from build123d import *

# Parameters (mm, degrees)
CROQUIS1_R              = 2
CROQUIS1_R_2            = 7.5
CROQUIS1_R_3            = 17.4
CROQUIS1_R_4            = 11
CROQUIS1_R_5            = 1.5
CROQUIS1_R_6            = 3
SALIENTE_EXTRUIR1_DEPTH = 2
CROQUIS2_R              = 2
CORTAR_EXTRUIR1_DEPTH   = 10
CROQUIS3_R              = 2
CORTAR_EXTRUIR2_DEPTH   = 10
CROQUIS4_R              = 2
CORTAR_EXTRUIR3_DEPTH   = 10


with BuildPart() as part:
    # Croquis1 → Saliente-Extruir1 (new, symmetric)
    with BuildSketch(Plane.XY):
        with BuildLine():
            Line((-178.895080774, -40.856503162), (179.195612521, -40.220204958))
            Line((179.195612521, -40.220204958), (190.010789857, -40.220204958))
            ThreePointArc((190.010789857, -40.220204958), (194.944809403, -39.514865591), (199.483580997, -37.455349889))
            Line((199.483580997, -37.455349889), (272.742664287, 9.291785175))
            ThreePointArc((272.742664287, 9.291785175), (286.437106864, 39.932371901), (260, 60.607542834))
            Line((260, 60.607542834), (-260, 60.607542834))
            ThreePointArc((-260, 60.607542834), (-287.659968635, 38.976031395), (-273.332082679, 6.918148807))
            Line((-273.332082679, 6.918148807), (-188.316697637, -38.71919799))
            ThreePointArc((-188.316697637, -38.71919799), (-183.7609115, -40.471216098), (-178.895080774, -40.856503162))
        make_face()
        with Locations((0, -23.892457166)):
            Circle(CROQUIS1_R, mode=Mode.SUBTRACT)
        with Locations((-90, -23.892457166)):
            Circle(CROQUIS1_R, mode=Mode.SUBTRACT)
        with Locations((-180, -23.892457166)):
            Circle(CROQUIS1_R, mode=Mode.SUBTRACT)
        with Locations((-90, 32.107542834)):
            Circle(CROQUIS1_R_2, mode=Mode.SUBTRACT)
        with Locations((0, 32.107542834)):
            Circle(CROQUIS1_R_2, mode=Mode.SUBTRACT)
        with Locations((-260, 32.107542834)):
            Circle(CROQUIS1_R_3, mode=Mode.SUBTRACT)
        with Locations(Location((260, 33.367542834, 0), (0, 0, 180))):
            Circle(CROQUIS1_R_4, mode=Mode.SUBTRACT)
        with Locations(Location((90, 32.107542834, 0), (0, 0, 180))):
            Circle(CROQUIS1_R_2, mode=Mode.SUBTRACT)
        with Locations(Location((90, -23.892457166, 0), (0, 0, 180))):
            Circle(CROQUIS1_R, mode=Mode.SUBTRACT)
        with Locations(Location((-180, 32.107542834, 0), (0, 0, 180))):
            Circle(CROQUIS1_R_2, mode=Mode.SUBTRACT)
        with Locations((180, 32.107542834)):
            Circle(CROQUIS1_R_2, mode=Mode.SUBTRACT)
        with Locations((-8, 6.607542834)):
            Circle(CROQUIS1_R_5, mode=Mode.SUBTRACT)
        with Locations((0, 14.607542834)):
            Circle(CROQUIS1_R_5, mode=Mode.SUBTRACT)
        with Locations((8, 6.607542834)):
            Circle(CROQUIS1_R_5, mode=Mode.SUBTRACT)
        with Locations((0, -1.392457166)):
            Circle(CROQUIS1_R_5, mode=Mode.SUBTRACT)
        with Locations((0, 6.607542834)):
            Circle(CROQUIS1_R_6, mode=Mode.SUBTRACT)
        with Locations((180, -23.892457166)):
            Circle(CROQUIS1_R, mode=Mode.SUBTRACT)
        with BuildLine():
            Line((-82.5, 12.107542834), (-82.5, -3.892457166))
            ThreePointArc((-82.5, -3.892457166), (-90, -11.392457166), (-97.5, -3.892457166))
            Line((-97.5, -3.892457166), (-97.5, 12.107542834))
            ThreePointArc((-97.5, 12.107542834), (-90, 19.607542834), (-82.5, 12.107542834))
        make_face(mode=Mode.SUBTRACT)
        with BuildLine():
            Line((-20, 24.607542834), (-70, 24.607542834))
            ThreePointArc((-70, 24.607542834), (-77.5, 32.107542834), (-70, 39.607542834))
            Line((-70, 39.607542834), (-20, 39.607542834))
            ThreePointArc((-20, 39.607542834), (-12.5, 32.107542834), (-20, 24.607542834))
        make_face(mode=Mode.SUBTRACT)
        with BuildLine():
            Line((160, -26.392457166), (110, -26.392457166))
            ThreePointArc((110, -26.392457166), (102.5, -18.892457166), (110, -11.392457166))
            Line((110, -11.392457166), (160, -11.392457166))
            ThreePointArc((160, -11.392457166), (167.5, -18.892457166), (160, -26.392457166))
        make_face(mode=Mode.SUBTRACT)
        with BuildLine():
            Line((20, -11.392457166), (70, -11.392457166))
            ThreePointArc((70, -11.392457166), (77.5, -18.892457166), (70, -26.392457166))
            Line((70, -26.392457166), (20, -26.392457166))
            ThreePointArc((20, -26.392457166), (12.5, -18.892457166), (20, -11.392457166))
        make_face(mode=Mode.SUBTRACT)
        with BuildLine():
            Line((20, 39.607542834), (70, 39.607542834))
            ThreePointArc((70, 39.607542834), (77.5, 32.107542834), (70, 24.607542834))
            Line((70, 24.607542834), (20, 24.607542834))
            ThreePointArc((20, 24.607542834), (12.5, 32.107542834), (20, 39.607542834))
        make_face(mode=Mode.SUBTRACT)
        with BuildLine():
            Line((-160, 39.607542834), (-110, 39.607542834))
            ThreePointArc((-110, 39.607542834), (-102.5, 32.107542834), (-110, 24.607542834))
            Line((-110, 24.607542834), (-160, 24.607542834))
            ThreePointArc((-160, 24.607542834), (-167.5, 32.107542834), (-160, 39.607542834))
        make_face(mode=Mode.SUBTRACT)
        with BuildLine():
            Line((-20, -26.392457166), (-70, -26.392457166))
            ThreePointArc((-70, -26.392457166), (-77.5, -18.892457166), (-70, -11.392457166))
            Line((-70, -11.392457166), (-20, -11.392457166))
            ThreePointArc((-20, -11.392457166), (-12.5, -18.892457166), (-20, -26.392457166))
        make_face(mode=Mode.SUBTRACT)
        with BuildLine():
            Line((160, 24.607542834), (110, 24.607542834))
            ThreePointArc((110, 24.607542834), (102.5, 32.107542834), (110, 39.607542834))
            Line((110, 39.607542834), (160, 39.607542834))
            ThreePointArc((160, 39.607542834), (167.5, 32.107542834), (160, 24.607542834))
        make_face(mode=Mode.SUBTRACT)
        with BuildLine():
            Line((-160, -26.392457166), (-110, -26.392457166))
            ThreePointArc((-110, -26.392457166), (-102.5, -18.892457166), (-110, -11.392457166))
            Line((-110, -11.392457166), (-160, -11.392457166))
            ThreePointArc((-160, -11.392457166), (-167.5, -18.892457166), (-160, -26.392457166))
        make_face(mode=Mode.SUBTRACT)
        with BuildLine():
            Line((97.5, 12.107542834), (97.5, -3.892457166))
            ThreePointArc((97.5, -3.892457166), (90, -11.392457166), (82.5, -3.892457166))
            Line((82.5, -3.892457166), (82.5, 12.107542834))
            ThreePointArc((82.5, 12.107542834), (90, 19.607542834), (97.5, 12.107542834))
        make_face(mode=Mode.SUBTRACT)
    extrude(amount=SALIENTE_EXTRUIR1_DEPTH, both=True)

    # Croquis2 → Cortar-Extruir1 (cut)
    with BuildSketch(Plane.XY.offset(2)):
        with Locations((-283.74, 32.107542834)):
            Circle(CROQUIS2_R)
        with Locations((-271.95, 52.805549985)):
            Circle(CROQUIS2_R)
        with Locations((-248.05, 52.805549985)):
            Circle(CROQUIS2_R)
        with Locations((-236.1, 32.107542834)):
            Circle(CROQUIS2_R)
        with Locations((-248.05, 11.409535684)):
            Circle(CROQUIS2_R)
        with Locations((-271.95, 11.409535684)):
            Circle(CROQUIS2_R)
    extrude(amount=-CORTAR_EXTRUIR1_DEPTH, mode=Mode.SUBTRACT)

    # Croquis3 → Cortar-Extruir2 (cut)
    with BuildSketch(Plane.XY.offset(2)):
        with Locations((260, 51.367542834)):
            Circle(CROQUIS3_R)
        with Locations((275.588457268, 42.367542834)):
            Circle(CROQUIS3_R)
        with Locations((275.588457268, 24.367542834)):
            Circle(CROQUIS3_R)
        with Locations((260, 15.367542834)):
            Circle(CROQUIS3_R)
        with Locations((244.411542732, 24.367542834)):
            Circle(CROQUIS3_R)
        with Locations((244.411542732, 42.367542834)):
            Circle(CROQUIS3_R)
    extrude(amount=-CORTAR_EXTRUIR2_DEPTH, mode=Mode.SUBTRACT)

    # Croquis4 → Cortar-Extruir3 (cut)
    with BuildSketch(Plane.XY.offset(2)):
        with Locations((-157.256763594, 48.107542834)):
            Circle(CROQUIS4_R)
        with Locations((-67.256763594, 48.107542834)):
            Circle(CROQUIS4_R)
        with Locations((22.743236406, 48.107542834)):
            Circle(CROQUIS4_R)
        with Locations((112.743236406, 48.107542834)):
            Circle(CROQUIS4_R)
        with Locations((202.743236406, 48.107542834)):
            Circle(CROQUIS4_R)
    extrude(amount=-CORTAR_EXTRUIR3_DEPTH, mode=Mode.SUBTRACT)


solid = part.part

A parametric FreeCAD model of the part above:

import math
import FreeCAD as App
import Part
import Sketcher
from FreeCAD import Vector

doc = App.newDocument("Part")
params = doc.addObject("Spreadsheet::Sheet", "Params")
for row, (alias, value) in enumerate([
    ("sketch1_diameter", "4 mm"),
    ("sketch1_diameter2", "3 mm"),
    ("sketch1_diameter3", "6 mm"),
    ("sketch1_diameter4", "15 mm"),
    ("sketch1_diameter5", "22 mm"),
    ("pad1_length", "4 mm"),
    ("sketch2_diameter", "4 mm"),
    ("pocket1_length", "10 mm"),
    ("sketch3_diameter", "4 mm"),
    ("pocket2_length", "10 mm"),
    ("sketch4_diameter", "4 mm"),
    ("pocket3_length", "10 mm"),
], start=1):
    params.set(f"A{row}", alias)
    params.set(f"B{row}", "=" + value)
    params.setAlias(f"B{row}", alias)

body = doc.addObject("PartDesign::Body", "Body")

sketch1 = doc.addObject("Sketcher::SketchObject", "Sketch")
body.addObject(sketch1)
sketch1.AttachmentSupport = (doc.XY_Plane, [""])
sketch1.MapMode = "FlatFace"
sketch1.addGeometry(Part.LineSegment(Vector(-178.895081, -40.856503, 0), Vector(179.195613, -40.220205, 0)), False)
sketch1.addGeometry(Part.LineSegment(Vector(179.195613, -40.220205, 0), Vector(190.01079, -40.220205, 0)), False)
sketch1.addGeometry(Part.ArcOfCircle(Part.Circle(Vector(190.01079, -22.610205, 0), Vector(0, 0, 1), 17.61), math.radians(-90), math.radians(-57.457767)), False)
sketch1.addGeometry(Part.LineSegment(Vector(199.483581, -37.45535, 0), Vector(272.742664, 9.291785, 0)), False)
sketch1.addGeometry(Part.ArcOfCircle(Part.Circle(Vector(260, 33.367543, 0), Vector(0, 0, 1), 27.24), math.radians(-62.10891), math.radians(90)), False)
sketch1.addGeometry(Part.LineSegment(Vector(260, 60.607543, 0), Vector(-260, 60.607543, 0)), False)
sketch1.addGeometry(Part.ArcOfCircle(Part.Circle(Vector(-260, 32.107543, 0), Vector(0, 0, 1), 28.5), math.radians(90), math.radians(242.10891)), False)
sketch1.addGeometry(Part.LineSegment(Vector(-273.332083, 6.918149, 0), Vector(-188.316698, -38.719198, 0)), False)
sketch1.addGeometry(Part.ArcOfCircle(Part.Circle(Vector(-180, -23.892457, 0), Vector(0, 0, 1), 16.999991), math.radians(-119.28918), math.radians(-86.273418)), False)
sketch1.addGeometry(Part.Circle(Vector(-180, -23.892457, 0), Vector(0, 0, 1), 2), False)
sketch1.addGeometry(Part.Circle(Vector(-90, -23.892457, 0), Vector(0, 0, 1), 2), False)
sketch1.addGeometry(Part.LineSegment(Vector(-110, -26.392457, 0), Vector(-160, -26.392457, 0)), False)
sketch1.addGeometry(Part.ArcOfCircle(Part.Circle(Vector(-160, -18.892457, 0), Vector(0, 0, 1), 7.5), math.radians(90), math.radians(270)), False)
sketch1.addGeometry(Part.LineSegment(Vector(-160, -11.392457, 0), Vector(-110, -11.392457, 0)), False)
sketch1.addGeometry(Part.ArcOfCircle(Part.Circle(Vector(-110, -18.892457, 0), Vector(0, 0, 1), 7.5), math.radians(-90), math.radians(90)), False)
sketch1.addGeometry(Part.ArcOfCircle(Part.Circle(Vector(-20, -18.892457, 0), Vector(0, 0, 1), 7.5), math.radians(-90), math.radians(90)), False)
sketch1.addGeometry(Part.LineSegment(Vector(-20, -26.392457, 0), Vector(-70, -26.392457, 0)), False)
sketch1.addGeometry(Part.ArcOfCircle(Part.Circle(Vector(-70, -18.892457, 0), Vector(0, 0, 1), 7.5), math.radians(90), math.radians(270)), False)
sketch1.addGeometry(Part.LineSegment(Vector(-70, -11.392457, 0), Vector(-20, -11.392457, 0)), False)
sketch1.addGeometry(Part.ArcOfCircle(Part.Circle(Vector(-90, 12.107543, 0), Vector(0, 0, 1), 7.5), math.radians(0), math.radians(180)), False)
sketch1.addGeometry(Part.LineSegment(Vector(-82.5, 12.107543, 0), Vector(-82.5, -3.892457, 0)), False)
sketch1.addGeometry(Part.ArcOfCircle(Part.Circle(Vector(-90, -3.892457, 0), Vector(0, 0, 1), 7.5), math.radians(180), math.radians(360)), False)
sketch1.addGeometry(Part.LineSegment(Vector(-97.5, -3.892457, 0), Vector(-97.5, 12.107543, 0)), False)
sketch1.addGeometry(Part.Circle(Vector(-8, 6.607543, 0), Vector(0, 0, 1), 1.5), False)
sketch1.addGeometry(Part.Circle(Vector(0, -23.892457, 0), Vector(0, 0, 1), 2), False)
sketch1.addGeometry(Part.ArcOfCircle(Part.Circle(Vector(20, -18.892457, 0), Vector(0, 0, 1), 7.5), math.radians(90), math.radians(270)), False)
sketch1.addGeometry(Part.LineSegment(Vector(20, -11.392457, 0), Vector(70, -11.392457, 0)), False)
sketch1.addGeometry(Part.ArcOfCircle(Part.Circle(Vector(70, -18.892457, 0), Vector(0, 0, 1), 7.5), math.radians(-90), math.radians(90)), False)
sketch1.addGeometry(Part.LineSegment(Vector(70, -26.392457, 0), Vector(20, -26.392457, 0)), False)
sketch1.addGeometry(Part.Circle(Vector(90, -23.892457, 0), Vector(0, 0, 1), 2), False)
sketch1.addGeometry(Part.Circle(Vector(180, -23.892457, 0), Vector(0, 0, 1), 2), False)
sketch1.addGeometry(Part.ArcOfCircle(Part.Circle(Vector(160, -18.892457, 0), Vector(0, 0, 1), 7.5), math.radians(-90), math.radians(90)), False)
sketch1.addGeometry(Part.LineSegment(Vector(160, -26.392457, 0), Vector(110, -26.392457, 0)), False)
sketch1.addGeometry(Part.ArcOfCircle(Part.Circle(Vector(110, -18.892457, 0), Vector(0, 0, 1), 7.5), math.radians(90), math.radians(270)), False)
sketch1.addGeometry(Part.LineSegment(Vector(110, -11.392457, 0), Vector(160, -11.392457, 0)), False)
sketch1.addGeometry(Part.Circle(Vector(0, -1.392457, 0), Vector(0, 0, 1), 1.5), False)
sketch1.addGeometry(Part.Circle(Vector(0, 6.607543, 0), Vector(0, 0, 1), 3), False)
sketch1.addGeometry(Part.Circle(Vector(8, 6.607543, 0), Vector(0, 0, 1), 1.5), False)
sketch1.addGeometry(Part.ArcOfCircle(Part.Circle(Vector(90, 12.107543, 0), Vector(0, 0, 1), 7.5), math.radians(0), math.radians(180)), False)
sketch1.addGeometry(Part.LineSegment(Vector(97.5, 12.107543, 0), Vector(97.5, -3.892457, 0)), False)
sketch1.addGeometry(Part.ArcOfCircle(Part.Circle(Vector(90, -3.892457, 0), Vector(0, 0, 1), 7.5), math.radians(180), math.radians(360)), False)
sketch1.addGeometry(Part.LineSegment(Vector(82.5, -3.892457, 0), Vector(82.5, 12.107543, 0)), False)
sketch1.addGeometry(Part.Circle(Vector(-260, 32.107543, 0), Vector(0, 0, 1), 17.4), False)
sketch1.addGeometry(Part.Circle(Vector(-180, 32.107543, 0), Vector(0, 0, 1), 7.5), False)
sketch1.addGeometry(Part.ArcOfCircle(Part.Circle(Vector(-160, 32.107543, 0), Vector(0, 0, 1), 7.5), math.radians(90), math.radians(270)), False)
sketch1.addGeometry(Part.LineSegment(Vector(-160, 39.607543, 0), Vector(-110, 39.607543, 0)), False)
sketch1.addGeometry(Part.ArcOfCircle(Part.Circle(Vector(-110, 32.107543, 0), Vector(0, 0, 1), 7.5), math.radians(-90), math.radians(90)), False)
sketch1.addGeometry(Part.LineSegment(Vector(-110, 24.607543, 0), Vector(-160, 24.607543, 0)), False)
sketch1.addGeometry(Part.Circle(Vector(-90, 32.107543, 0), Vector(0, 0, 1), 7.5), False)
sketch1.addGeometry(Part.ArcOfCircle(Part.Circle(Vector(-20, 32.107543, 0), Vector(0, 0, 1), 7.5), math.radians(-90), math.radians(90)), False)
sketch1.addGeometry(Part.LineSegment(Vector(-20, 24.607543, 0), Vector(-70, 24.607543, 0)), False)
sketch1.addGeometry(Part.ArcOfCircle(Part.Circle(Vector(-70, 32.107543, 0), Vector(0, 0, 1), 7.5), math.radians(90), math.radians(270)), False)
sketch1.addGeometry(Part.LineSegment(Vector(-70, 39.607543, 0), Vector(-20, 39.607543, 0)), False)
sketch1.addGeometry(Part.Circle(Vector(0, 14.607543, 0), Vector(0, 0, 1), 1.5), False)
sketch1.addGeometry(Part.Circle(Vector(0, 32.107543, 0), Vector(0, 0, 1), 7.5), False)
sketch1.addGeometry(Part.ArcOfCircle(Part.Circle(Vector(20, 32.107543, 0), Vector(0, 0, 1), 7.5), math.radians(90), math.radians(270)), False)
sketch1.addGeometry(Part.LineSegment(Vector(20, 39.607543, 0), Vector(70, 39.607543, 0)), False)
sketch1.addGeometry(Part.ArcOfCircle(Part.Circle(Vector(70, 32.107543, 0), Vector(0, 0, 1), 7.5), math.radians(-90), math.radians(90)), False)
sketch1.addGeometry(Part.LineSegment(Vector(70, 24.607543, 0), Vector(20, 24.607543, 0)), False)
sketch1.addGeometry(Part.Circle(Vector(90, 32.107543, 0), Vector(0, 0, 1), 7.5), False)
sketch1.addGeometry(Part.ArcOfCircle(Part.Circle(Vector(160, 32.107543, 0), Vector(0, 0, 1), 7.5), math.radians(-90), math.radians(90)), False)
sketch1.addGeometry(Part.LineSegment(Vector(160, 24.607543, 0), Vector(110, 24.607543, 0)), False)
sketch1.addGeometry(Part.ArcOfCircle(Part.Circle(Vector(110, 32.107543, 0), Vector(0, 0, 1), 7.5), math.radians(90), math.radians(270)), False)
sketch1.addGeometry(Part.LineSegment(Vector(110, 39.607543, 0), Vector(160, 39.607543, 0)), False)
sketch1.addGeometry(Part.Circle(Vector(180, 32.107543, 0), Vector(0, 0, 1), 7.5), False)
sketch1.addGeometry(Part.Circle(Vector(260, 33.367543, 0), Vector(0, 0, 1), 11), False)
sketch1.addConstraint(Sketcher.Constraint("Coincident", 0, 2, 1, 1))
sketch1.addConstraint(Sketcher.Constraint("Tangent", 1, 2, 2, 1))
sketch1.addConstraint(Sketcher.Constraint("Tangent", 2, 2, 3, 1))
sketch1.addConstraint(Sketcher.Constraint("Coincident", 3, 2, 4, 1))
sketch1.addConstraint(Sketcher.Constraint("Tangent", 4, 2, 5, 1))
sketch1.addConstraint(Sketcher.Constraint("Tangent", 5, 2, 6, 1))
sketch1.addConstraint(Sketcher.Constraint("Coincident", 6, 2, 7, 1))
sketch1.addConstraint(Sketcher.Constraint("Coincident", 7, 2, 8, 1))
sketch1.addConstraint(Sketcher.Constraint("Coincident", 8, 2, 0, 1))
sketch1.addConstraint(Sketcher.Constraint("Tangent", 11, 2, 12, 2))
sketch1.addConstraint(Sketcher.Constraint("Tangent", 12, 1, 13, 1))
sketch1.addConstraint(Sketcher.Constraint("Tangent", 13, 2, 14, 2))
sketch1.addConstraint(Sketcher.Constraint("Tangent", 14, 1, 11, 1))
sketch1.addConstraint(Sketcher.Constraint("Tangent", 15, 1, 16, 1))
sketch1.addConstraint(Sketcher.Constraint("Tangent", 16, 2, 17, 2))
sketch1.addConstraint(Sketcher.Constraint("Tangent", 17, 1, 18, 1))
sketch1.addConstraint(Sketcher.Constraint("Tangent", 18, 2, 15, 2))
sketch1.addConstraint(Sketcher.Constraint("Tangent", 19, 1, 20, 1))
sketch1.addConstraint(Sketcher.Constraint("Tangent", 20, 2, 21, 2))
sketch1.addConstraint(Sketcher.Constraint("Tangent", 21, 1, 22, 1))
sketch1.addConstraint(Sketcher.Constraint("Tangent", 22, 2, 19, 2))
sketch1.addConstraint(Sketcher.Constraint("Tangent", 25, 1, 26, 1))
sketch1.addConstraint(Sketcher.Constraint("Tangent", 26, 2, 27, 2))
sketch1.addConstraint(Sketcher.Constraint("Tangent", 27, 1, 28, 1))
sketch1.addConstraint(Sketcher.Constraint("Tangent", 28, 2, 25, 2))
sketch1.addConstraint(Sketcher.Constraint("Tangent", 31, 1, 32, 1))
sketch1.addConstraint(Sketcher.Constraint("Tangent", 32, 2, 33, 2))
sketch1.addConstraint(Sketcher.Constraint("Tangent", 33, 1, 34, 1))
sketch1.addConstraint(Sketcher.Constraint("Tangent", 34, 2, 31, 2))
sketch1.addConstraint(Sketcher.Constraint("Tangent", 38, 1, 39, 1))
sketch1.addConstraint(Sketcher.Constraint("Tangent", 39, 2, 40, 2))
sketch1.addConstraint(Sketcher.Constraint("Tangent", 40, 1, 41, 1))
sketch1.addConstraint(Sketcher.Constraint("Tangent", 41, 2, 38, 2))
sketch1.addConstraint(Sketcher.Constraint("Tangent", 44, 1, 45, 1))
sketch1.addConstraint(Sketcher.Constraint("Tangent", 45, 2, 46, 2))
sketch1.addConstraint(Sketcher.Constraint("Tangent", 46, 1, 47, 1))
sketch1.addConstraint(Sketcher.Constraint("Tangent", 47, 2, 44, 2))
sketch1.addConstraint(Sketcher.Constraint("Tangent", 49, 1, 50, 1))
sketch1.addConstraint(Sketcher.Constraint("Tangent", 50, 2, 51, 2))
sketch1.addConstraint(Sketcher.Constraint("Tangent", 51, 1, 52, 1))
sketch1.addConstraint(Sketcher.Constraint("Tangent", 52, 2, 49, 2))
sketch1.addConstraint(Sketcher.Constraint("Tangent", 55, 1, 56, 1))
sketch1.addConstraint(Sketcher.Constraint("Tangent", 56, 2, 57, 2))
sketch1.addConstraint(Sketcher.Constraint("Tangent", 57, 1, 58, 1))
sketch1.addConstraint(Sketcher.Constraint("Tangent", 58, 2, 55, 2))
sketch1.addConstraint(Sketcher.Constraint("Tangent", 60, 1, 61, 1))
sketch1.addConstraint(Sketcher.Constraint("Tangent", 61, 2, 62, 2))
sketch1.addConstraint(Sketcher.Constraint("Tangent", 62, 1, 63, 1))
sketch1.addConstraint(Sketcher.Constraint("Tangent", 63, 2, 60, 2))
sketch1.addConstraint(Sketcher.Constraint("Horizontal", 1))
sketch1.addConstraint(Sketcher.Constraint("Horizontal", 5))
sketch1.addConstraint(Sketcher.Constraint("Horizontal", 11))
sketch1.addConstraint(Sketcher.Constraint("Horizontal", 13))
sketch1.addConstraint(Sketcher.Constraint("Horizontal", 16))
sketch1.addConstraint(Sketcher.Constraint("Horizontal", 18))
sketch1.addConstraint(Sketcher.Constraint("Vertical", 20))
sketch1.addConstraint(Sketcher.Constraint("Vertical", 22))
sketch1.addConstraint(Sketcher.Constraint("Horizontal", 26))
sketch1.addConstraint(Sketcher.Constraint("Horizontal", 28))
sketch1.addConstraint(Sketcher.Constraint("Horizontal", 32))
sketch1.addConstraint(Sketcher.Constraint("Horizontal", 34))
sketch1.addConstraint(Sketcher.Constraint("Vertical", 39))
sketch1.addConstraint(Sketcher.Constraint("Vertical", 41))
sketch1.addConstraint(Sketcher.Constraint("Horizontal", 45))
sketch1.addConstraint(Sketcher.Constraint("Horizontal", 47))
sketch1.addConstraint(Sketcher.Constraint("Horizontal", 50))
sketch1.addConstraint(Sketcher.Constraint("Horizontal", 52))
sketch1.addConstraint(Sketcher.Constraint("Horizontal", 56))
sketch1.addConstraint(Sketcher.Constraint("Horizontal", 58))
sketch1.addConstraint(Sketcher.Constraint("Horizontal", 61))
sketch1.addConstraint(Sketcher.Constraint("Horizontal", 63))
sketch1.addConstraint(Sketcher.Constraint("Coincident", 9, 3, 8, 3))
sketch1.addConstraint(Sketcher.Constraint("Coincident", 42, 3, 6, 3))
sketch1.addConstraint(Sketcher.Constraint("Coincident", 65, 3, 4, 3))
sketch1.addConstraint(Sketcher.Constraint("Equal", 9, 10))
sketch1.addConstraint(Sketcher.Constraint("Equal", 14, 15))
sketch1.addConstraint(Sketcher.Constraint("Equal", 17, 19))
sketch1.addConstraint(Sketcher.Constraint("Equal", 10, 24))
sketch1.addConstraint(Sketcher.Constraint("Equal", 21, 25))
sketch1.addConstraint(Sketcher.Constraint("Equal", 24, 29))
sketch1.addConstraint(Sketcher.Constraint("Equal", 29, 30))
sketch1.addConstraint(Sketcher.Constraint("Equal", 27, 31))
sketch1.addConstraint(Sketcher.Constraint("Equal", 23, 35))
sketch1.addConstraint(Sketcher.Constraint("Equal", 35, 37))
sketch1.addConstraint(Sketcher.Constraint("Equal", 33, 38))
sketch1.addConstraint(Sketcher.Constraint("Equal", 40, 43))
sketch1.addConstraint(Sketcher.Constraint("Equal", 43, 44))
sketch1.addConstraint(Sketcher.Constraint("Equal", 46, 48))
sketch1.addConstraint(Sketcher.Constraint("Equal", 48, 49))
sketch1.addConstraint(Sketcher.Constraint("Equal", 37, 53))
sketch1.addConstraint(Sketcher.Constraint("Equal", 51, 54))
sketch1.addConstraint(Sketcher.Constraint("Equal", 54, 55))
sketch1.addConstraint(Sketcher.Constraint("Equal", 57, 59))
sketch1.addConstraint(Sketcher.Constraint("Equal", 59, 60))
sketch1.addConstraint(Sketcher.Constraint("Equal", 62, 64))
sketch1.addConstraint(Sketcher.Constraint("Symmetric", 15, 3, 25, 3, -2))
sketch1.addConstraint(Sketcher.Constraint("Symmetric", 10, 3, 29, 3, -2))
sketch1.addConstraint(Sketcher.Constraint("Symmetric", 8, 3, 30, 3, -2))
sketch1.addConstraint(Sketcher.Constraint("Symmetric", 12, 3, 31, 3, -2))
sketch1.addConstraint(Sketcher.Constraint("Symmetric", 23, 3, 37, 3, -2))
sketch1.addConstraint(Sketcher.Constraint("Symmetric", 19, 3, 38, 3, -2))
sketch1.addConstraint(Sketcher.Constraint("Symmetric", 49, 3, 55, 3, -2))
sketch1.addConstraint(Sketcher.Constraint("Symmetric", 48, 3, 59, 3, -2))
sketch1.addConstraint(Sketcher.Constraint("Symmetric", 44, 3, 60, 3, -2))
sketch1.addConstraint(Sketcher.Constraint("Symmetric", 43, 3, 64, 3, -2))
sketch1.addConstraint(Sketcher.Constraint("PointOnObject", 24, 3, -2))
sketch1.addConstraint(Sketcher.Constraint("PointOnObject", 35, 3, -2))
sketch1.addConstraint(Sketcher.Constraint("PointOnObject", 36, 3, -2))
sketch1.addConstraint(Sketcher.Constraint("PointOnObject", 53, 3, -2))
sketch1.addConstraint(Sketcher.Constraint("PointOnObject", 54, 3, -2))
sketch1.addConstraint(Sketcher.Constraint("Horizontal", 9, 3, 10, 3))
sketch1.addConstraint(Sketcher.Constraint("Horizontal", 14, 3, 15, 3))
sketch1.addConstraint(Sketcher.Constraint("Horizontal", 10, 3, 24, 3))
sketch1.addConstraint(Sketcher.Constraint("Horizontal", 23, 3, 36, 3))
sketch1.addConstraint(Sketcher.Constraint("Horizontal", 21, 3, 40, 3))
sketch1.addConstraint(Sketcher.Constraint("Horizontal", 42, 3, 43, 3))
sketch1.addConstraint(Sketcher.Constraint("Horizontal", 43, 3, 44, 3))
sketch1.addConstraint(Sketcher.Constraint("Horizontal", 46, 3, 48, 3))
sketch1.addConstraint(Sketcher.Constraint("Horizontal", 48, 3, 49, 3))
sketch1.addConstraint(Sketcher.Constraint("Horizontal", 51, 3, 54, 3))
sketch1.addConstraint(Sketcher.Constraint("Vertical", 10, 3, 19, 3))
sketch1.addConstraint(Sketcher.Constraint("Vertical", 9, 3, 43, 3))
sketch1.addConstraint(Sketcher.Constraint("Vertical", 12, 3, 44, 3))
sketch1.addConstraint(Sketcher.Constraint("Vertical", 14, 3, 46, 3))
sketch1.addConstraint(Sketcher.Constraint("Vertical", 21, 3, 48, 3))
sketch1.addConstraint(Sketcher.Constraint("Vertical", 15, 3, 49, 3))
sketch1.addConstraint(Sketcher.Constraint("Vertical", 17, 3, 51, 3))
sketch1.addConstraint(Sketcher.Constraint("Vertical", 27, 3, 57, 3))
sketch1.addConstraint(Sketcher.Constraint("Vertical", 33, 3, 62, 3))
sketch1.addConstraint(Sketcher.Constraint("Equal", 13, 16))
sketch1.addConstraint(Sketcher.Constraint("Equal", 18, 26))
sketch1.addConstraint(Sketcher.Constraint("Equal", 28, 32))
sketch1.addConstraint(Sketcher.Constraint("Diameter", 9, 4.0))
sketch1.addConstraint(Sketcher.Constraint("Diameter", 23, 3.0))
sketch1.addConstraint(Sketcher.Constraint("Diameter", 36, 6.0))
sketch1.addConstraint(Sketcher.Constraint("Diameter", 43, 15.0))
sketch1.addConstraint(Sketcher.Constraint("Diameter", 65, 22.0))
sketch1.addConstraint(Sketcher.Constraint("Diameter", 42, 34.8))
sketch1.addConstraint(Sketcher.Constraint("Radius", 6, 28.5))
sketch1.addConstraint(Sketcher.Constraint("DistanceX", 5, 2, 5, 1, 520.0))
sketch1.addConstraint(Sketcher.Constraint("DistanceX", 11, 2, 11, 1, 50.0))
sketch1.addConstraint(Sketcher.Constraint("DistanceY", 20, 2, 20, 1, 16.0))
sketch1.addConstraint(Sketcher.Constraint("Radius", 2, 17.61))
sketch1.addConstraint(Sketcher.Constraint("Radius", 4, 27.24))
sketch1.addConstraint(Sketcher.Constraint("DistanceX", -1, 1, 4, 3, 260.0))
sketch1.addConstraint(Sketcher.Constraint("DistanceX", 8, 3, -1, 1, 180.0))
sketch1.addConstraint(Sketcher.Constraint("DistanceX", 10, 3, -1, 1, 90.0))
sketch1.addConstraint(Sketcher.Constraint("DistanceX", 12, 3, -1, 1, 160.0))
sketch1.addConstraint(Sketcher.Constraint("DistanceX", 15, 3, -1, 1, 20.0))
sketch1.addConstraint(Sketcher.Constraint("DistanceX", 23, 3, -1, 1, 8.0))
sketch1.addConstraint(Sketcher.Constraint("Radius", 8, 16.999991))
sketch1.addConstraint(Sketcher.Constraint("Distance", 0, 358.091259))
sketch1.addConstraint(Sketcher.Constraint("DistanceX", 1, 1, 1, 2, 10.815177))
sketch1.addConstraint(Sketcher.Constraint("DistanceX", -1, 1, 2, 3, 190.01079))
sketch1.addConstraint(Sketcher.Constraint("DistanceX", -1, 1, 2, 2, 199.483581))
sketch1.addConstraint(Sketcher.Constraint("DistanceY", 2, 2, -1, 1, 37.45535))
sketch1.addConstraint(Sketcher.Constraint("DistanceY", -1, 1, 6, 2, 6.918149))
sketch1.addConstraint(Sketcher.Constraint("Distance", 3, 86.903325))
sketch1.addConstraint(Sketcher.Constraint("Distance", 7, 96.490327))
sketch1.addConstraint(Sketcher.Constraint("DistanceY", 8, 3, -1, 1, 23.892457))
sketch1.addConstraint(Sketcher.Constraint("DistanceY", 12, 3, -1, 1, 18.892457))
sketch1.addConstraint(Sketcher.Constraint("DistanceY", -1, 1, 19, 3, 12.107543))
sketch1.addConstraint(Sketcher.Constraint("DistanceY", -1, 1, 23, 3, 6.607543))
sketch1.addConstraint(Sketcher.Constraint("DistanceY", 35, 3, -1, 1, 1.392457))
sketch1.addConstraint(Sketcher.Constraint("DistanceY", -1, 1, 53, 3, 14.607543))
sketch1.setExpression("Constraints[132]", "Params.sketch1_diameter")
sketch1.setExpression("Constraints[133]", "Params.sketch1_diameter2")
sketch1.setExpression("Constraints[134]", "Params.sketch1_diameter3")
sketch1.setExpression("Constraints[135]", "Params.sketch1_diameter4")
sketch1.setExpression("Constraints[136]", "Params.sketch1_diameter5")
pad1 = doc.addObject("PartDesign::Pad", "Pad")
body.addObject(pad1)
pad1.Profile = sketch1
pad1.setExpression("Length", "Params.pad1_length")
pad1.Midplane = True

sketch2 = doc.addObject("Sketcher::SketchObject", "Sketch001")
body.addObject(sketch2)
sketch2.AttachmentSupport = (doc.XY_Plane, [""])
sketch2.MapMode = "FlatFace"
sketch2.AttachmentOffset = App.Placement(Vector(0, 0, 2), App.Rotation())
sketch2.addGeometry(Part.Circle(Vector(-283.74, 32.107543, 0), Vector(0, 0, 1), 2), False)
sketch2.addGeometry(Part.Circle(Vector(-271.95, 52.80555, 0), Vector(0, 0, 1), 2), False)
sketch2.addGeometry(Part.Circle(Vector(-248.05, 52.80555, 0), Vector(0, 0, 1), 2), False)
sketch2.addGeometry(Part.Circle(Vector(-236.1, 32.107543, 0), Vector(0, 0, 1), 2), False)
sketch2.addGeometry(Part.Circle(Vector(-248.05, 11.409536, 0), Vector(0, 0, 1), 2), False)
sketch2.addGeometry(Part.Circle(Vector(-271.95, 11.409536, 0), Vector(0, 0, 1), 2), False)
sketch2.addConstraint(Sketcher.Constraint("Equal", 0, 1))
sketch2.addConstraint(Sketcher.Constraint("Equal", 1, 2))
sketch2.addConstraint(Sketcher.Constraint("Equal", 2, 3))
sketch2.addConstraint(Sketcher.Constraint("Equal", 3, 4))
sketch2.addConstraint(Sketcher.Constraint("Equal", 4, 5))
sketch2.addConstraint(Sketcher.Constraint("Horizontal", 1, 3, 2, 3))
sketch2.addConstraint(Sketcher.Constraint("Horizontal", 0, 3, 3, 3))
sketch2.addConstraint(Sketcher.Constraint("Horizontal", 4, 3, 5, 3))
sketch2.addConstraint(Sketcher.Constraint("Vertical", 2, 3, 4, 3))
sketch2.addConstraint(Sketcher.Constraint("Vertical", 1, 3, 5, 3))
sketch2.addConstraint(Sketcher.Constraint("Diameter", 0, 4.0))
sketch2.addConstraint(Sketcher.Constraint("DistanceX", 3, 3, -1, 1, 236.1))
sketch2.addConstraint(Sketcher.Constraint("DistanceX", 1, 3, 2, 3, 23.9))
sketch2.addConstraint(Sketcher.Constraint("DistanceX", 0, 3, -1, 1, 283.74))
sketch2.addConstraint(Sketcher.Constraint("DistanceX", 1, 3, -1, 1, 271.95))
sketch2.addConstraint(Sketcher.Constraint("DistanceY", -1, 1, 1, 3, 52.80555))
sketch2.addConstraint(Sketcher.Constraint("DistanceY", -1, 1, 0, 3, 32.107543))
sketch2.addConstraint(Sketcher.Constraint("DistanceY", -1, 1, 4, 3, 11.409536))
sketch2.setExpression("Constraints[10]", "Params.sketch2_diameter")
pocket1 = doc.addObject("PartDesign::Pocket", "Pocket")
body.addObject(pocket1)
pocket1.Profile = sketch2
pocket1.setExpression("Length", "Params.pocket1_length")

sketch3 = doc.addObject("Sketcher::SketchObject", "Sketch002")
body.addObject(sketch3)
sketch3.AttachmentSupport = (doc.XY_Plane, [""])
sketch3.MapMode = "FlatFace"
sketch3.AttachmentOffset = App.Placement(Vector(0, 0, 2), App.Rotation())
sketch3.addGeometry(Part.Circle(Vector(260, 51.367543, 0), Vector(0, 0, 1), 2), False)
sketch3.addGeometry(Part.Circle(Vector(275.588457, 42.367543, 0), Vector(0, 0, 1), 2), False)
sketch3.addGeometry(Part.Circle(Vector(275.588457, 24.367543, 0), Vector(0, 0, 1), 2), False)
sketch3.addGeometry(Part.Circle(Vector(260, 15.367543, 0), Vector(0, 0, 1), 2), False)
sketch3.addGeometry(Part.Circle(Vector(244.411543, 24.367543, 0), Vector(0, 0, 1), 2), False)
sketch3.addGeometry(Part.Circle(Vector(244.411543, 42.367543, 0), Vector(0, 0, 1), 2), False)
sketch3.addConstraint(Sketcher.Constraint("Equal", 0, 1))
sketch3.addConstraint(Sketcher.Constraint("Equal", 1, 2))
sketch3.addConstraint(Sketcher.Constraint("Equal", 2, 3))
sketch3.addConstraint(Sketcher.Constraint("Equal", 3, 4))
sketch3.addConstraint(Sketcher.Constraint("Equal", 4, 5))
sketch3.addConstraint(Sketcher.Constraint("Horizontal", 2, 3, 4, 3))
sketch3.addConstraint(Sketcher.Constraint("Horizontal", 1, 3, 5, 3))
sketch3.addConstraint(Sketcher.Constraint("Vertical", 1, 3, 2, 3))
sketch3.addConstraint(Sketcher.Constraint("Vertical", 0, 3, 3, 3))
sketch3.addConstraint(Sketcher.Constraint("Vertical", 4, 3, 5, 3))
sketch3.addConstraint(Sketcher.Constraint("Diameter", 0, 4.0))
sketch3.addConstraint(Sketcher.Constraint("DistanceX", -1, 1, 0, 3, 260.0))
sketch3.addConstraint(Sketcher.Constraint("DistanceY", 1, 3, 0, 3, 9.0))
sketch3.addConstraint(Sketcher.Constraint("DistanceY", 2, 3, 1, 3, 18.0))
sketch3.addConstraint(Sketcher.Constraint("DistanceY", 3, 3, 2, 3, 9.0))
sketch3.addConstraint(Sketcher.Constraint("DistanceY", -1, 1, 0, 3, 51.367543))
sketch3.addConstraint(Sketcher.Constraint("DistanceX", -1, 1, 1, 3, 275.588457))
sketch3.addConstraint(Sketcher.Constraint("DistanceX", -1, 1, 4, 3, 244.411543))
sketch3.setExpression("Constraints[10]", "Params.sketch3_diameter")
pocket2 = doc.addObject("PartDesign::Pocket", "Pocket001")
body.addObject(pocket2)
pocket2.Profile = sketch3
pocket2.setExpression("Length", "Params.pocket2_length")

sketch4 = doc.addObject("Sketcher::SketchObject", "Sketch003")
body.addObject(sketch4)
sketch4.AttachmentSupport = (doc.XY_Plane, [""])
sketch4.MapMode = "FlatFace"
sketch4.AttachmentOffset = App.Placement(Vector(0, 0, 2), App.Rotation())
sketch4.addGeometry(Part.Circle(Vector(-157.256764, 48.107543, 0), Vector(0, 0, 1), 2), False)
sketch4.addGeometry(Part.Circle(Vector(-67.256764, 48.107543, 0), Vector(0, 0, 1), 2), False)
sketch4.addGeometry(Part.Circle(Vector(22.743236, 48.107543, 0), Vector(0, 0, 1), 2), False)
sketch4.addGeometry(Part.Circle(Vector(112.743236, 48.107543, 0), Vector(0, 0, 1), 2), False)
sketch4.addGeometry(Part.Circle(Vector(202.743236, 48.107543, 0), Vector(0, 0, 1), 2), False)
sketch4.addConstraint(Sketcher.Constraint("Equal", 0, 1))
sketch4.addConstraint(Sketcher.Constraint("Equal", 1, 2))
sketch4.addConstraint(Sketcher.Constraint("Equal", 2, 3))
sketch4.addConstraint(Sketcher.Constraint("Equal", 3, 4))
sketch4.addConstraint(Sketcher.Constraint("Horizontal", 0, 3, 1, 3))
sketch4.addConstraint(Sketcher.Constraint("Horizontal", 1, 3, 2, 3))
sketch4.addConstraint(Sketcher.Constraint("Horizontal", 2, 3, 3, 3))
sketch4.addConstraint(Sketcher.Constraint("Horizontal", 3, 3, 4, 3))
sketch4.addConstraint(Sketcher.Constraint("Diameter", 0, 4.0))
sketch4.addConstraint(Sketcher.Constraint("DistanceX", 0, 3, 1, 3, 90.0))
sketch4.addConstraint(Sketcher.Constraint("DistanceX", 1, 3, 2, 3, 90.0))
sketch4.addConstraint(Sketcher.Constraint("DistanceX", 2, 3, 3, 3, 90.0))
sketch4.addConstraint(Sketcher.Constraint("DistanceX", 3, 3, 4, 3, 90.0))
sketch4.addConstraint(Sketcher.Constraint("DistanceX", 0, 3, -1, 1, 157.256764))
sketch4.addConstraint(Sketcher.Constraint("DistanceY", -1, 1, 0, 3, 48.107543))
sketch4.setExpression("Constraints[8]", "Params.sketch4_diameter")
pocket3 = doc.addObject("PartDesign::Pocket", "Pocket002")
body.addObject(pocket3)
pocket3.Profile = sketch4
pocket3.setExpression("Length", "Params.pocket3_length")

doc.recompute()
